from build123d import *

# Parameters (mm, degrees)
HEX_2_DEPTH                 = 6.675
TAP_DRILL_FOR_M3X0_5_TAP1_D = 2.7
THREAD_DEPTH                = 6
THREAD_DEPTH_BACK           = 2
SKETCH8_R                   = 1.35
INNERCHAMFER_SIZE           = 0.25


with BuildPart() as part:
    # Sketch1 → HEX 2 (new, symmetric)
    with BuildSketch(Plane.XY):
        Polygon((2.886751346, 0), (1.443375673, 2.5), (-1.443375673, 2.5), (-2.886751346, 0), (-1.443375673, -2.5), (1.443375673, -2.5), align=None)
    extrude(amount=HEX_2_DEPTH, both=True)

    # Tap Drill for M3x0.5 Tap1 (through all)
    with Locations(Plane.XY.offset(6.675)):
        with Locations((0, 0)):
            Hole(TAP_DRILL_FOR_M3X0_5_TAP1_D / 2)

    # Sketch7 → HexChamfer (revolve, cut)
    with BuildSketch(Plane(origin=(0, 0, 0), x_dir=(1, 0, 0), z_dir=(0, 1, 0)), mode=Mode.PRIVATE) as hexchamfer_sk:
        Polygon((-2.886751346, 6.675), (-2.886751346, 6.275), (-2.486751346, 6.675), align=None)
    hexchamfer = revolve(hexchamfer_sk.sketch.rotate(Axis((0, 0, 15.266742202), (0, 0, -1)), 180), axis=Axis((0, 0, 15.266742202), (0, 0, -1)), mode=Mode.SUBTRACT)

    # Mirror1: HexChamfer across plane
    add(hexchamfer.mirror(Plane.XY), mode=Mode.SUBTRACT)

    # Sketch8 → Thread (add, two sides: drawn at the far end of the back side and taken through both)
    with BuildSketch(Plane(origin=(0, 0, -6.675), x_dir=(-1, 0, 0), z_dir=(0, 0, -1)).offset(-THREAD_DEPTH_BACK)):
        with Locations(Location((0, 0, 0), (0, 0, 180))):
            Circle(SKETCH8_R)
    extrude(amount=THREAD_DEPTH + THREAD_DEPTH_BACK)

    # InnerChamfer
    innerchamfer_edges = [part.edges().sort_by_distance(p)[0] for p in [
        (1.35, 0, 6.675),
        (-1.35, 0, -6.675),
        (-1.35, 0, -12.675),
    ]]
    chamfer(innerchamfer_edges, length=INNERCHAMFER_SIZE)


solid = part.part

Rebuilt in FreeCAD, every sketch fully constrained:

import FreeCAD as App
import Part
import Sketcher
from FreeCAD import Vector
Q = App.Units.Quantity


def edges_at(feature, points):
    """Names of the edges that pass closest to the given points."""
    edges = feature.Shape.Edges
    near = lambda p: min(range(len(edges)), key=lambda i: edges[i].distToShape(Part.Vertex(*p))[0])
    return sorted({f"Edge{near(p) + 1}" for p in points})


def add_polygon(sketch, points):
    """Adds a closed chain of lines whose ends are joined by coincident constraints."""
    first, n = sketch.GeometryCount, len(points)
    for a, b in zip(points, points[1:] + points[:1]):
        sketch.addGeometry(Part.LineSegment(App.Vector(*a, 0), App.Vector(*b, 0)), False)
    for i in range(n):
        sketch.addConstraint(Sketcher.Constraint("Coincident", first + i, 2, first + (i + 1) % n, 1))

doc = App.newDocument("Part")
body = doc.addObject("PartDesign::Body", "Body")

# Sketch on XY plane
sketch1 = doc.addObject("Sketcher::SketchObject", "Sketch")
body.addObject(sketch1)
sketch1.AttachmentSupport = (doc.XY_Plane, [""])
sketch1.MapMode = "FlatFace"
add_polygon(sketch1, [(2.9, 0), (1.4, 2.5), (-1.4, 2.5), (-2.9, 0), (-1.4, -2.5), (1.4, -2.5)])  # lines 0-5
sketch1.addConstraint([
    Sketcher.Constraint("Horizontal", 1),
    Sketcher.Constraint("Horizontal", 4),
    Sketcher.Constraint("Symmetric", 0, 2, 3, 2, -1, 1),
    Sketcher.Constraint("Symmetric", 2, 2, 5, 2, -1, 1),
    Sketcher.Constraint("PointOnObject", 2, 2, -1),
    Sketcher.Constraint("Parallel", 2, 5),
    Sketcher.Constraint("Vertical", 1, 2, 3, 2),
    Sketcher.Constraint("Angle", 0, Q("120 deg")),
    Sketcher.Constraint("DistanceY", 3, 2, 1, 2, Q("5 mm")),
    Sketcher.Constraint("DistanceX", 1, 2, 1, 1, Q("2.886751 mm")),
])
pad1 = doc.addObject("PartDesign::Pad", "Pad")
body.addObject(pad1)
pad1.Profile = sketch1
pad1.Length = 13.35
pad1.Midplane = True

# Sketch on XY plane
sketch2 = doc.addObject("Sketcher::SketchObject", "Sketch001")
body.addObject(sketch2)
sketch2.AttachmentSupport = (doc.XY_Plane, [""])
sketch2.MapMode = "FlatFace"
sketch2.AttachmentOffset = App.Placement(Vector(0, 0, 6.675), App.Rotation())
sketch2.addGeometry(Part.Circle(Vector(0, 0, 0), Vector(0, 0, 1), 1.4), False)
sketch2.addConstraint([
    Sketcher.Constraint("Coincident", 0, 3, -1, 1),
    Sketcher.Constraint("Diameter", 0, Q("2.7 mm")),
])
doc.recompute()
hole = doc.addObject("PartDesign::Hole", "Hole")
body.addObject(hole)
hole.Profile = sketch2
hole.ThreadType = "None"
hole.Diameter = 2.7
hole.DepthType = "ThroughAll"

# Sketch on XZ plane
sketch3 = doc.addObject("Sketcher::SketchObject", "Sketch002")
body.addObject(sketch3)
sketch3.AttachmentSupport = (doc.XZ_Plane, [""])
sketch3.MapMode = "FlatFace"
add_polygon(sketch3, [(-2.89, -6.67), (-2.89, -6.28), (-2.49, -6.67)])  # lines 0-2
sketch3.addConstraint([
    Sketcher.Constraint("Vertical", 0),
    Sketcher.Constraint("Horizontal", 2),
    Sketcher.Constraint("Equal", 2, 0),
    Sketcher.Constraint("DistanceX", 2, 2, 2, 1, Q("0.4 mm")),
    Sketcher.Constraint("DistanceY", 0, 2, -1, 1, Q("6.275 mm")),
    Sketcher.Constraint("DistanceX", 0, 2, -1, 1, Q("2.886751 mm")),
])
groove = doc.addObject("PartDesign::Groove", "Groove")
body.addObject(groove)
groove.Profile = sketch3
groove.ReferenceAxis = (sketch3, ["V_Axis"])
groove.Angle = 360
doc.recompute()

mirrored = doc.addObject("PartDesign::Mirrored", "Mirrored")
body.addObject(mirrored)
mirrored.Originals = [groove]
mirrored.MirrorPlane = (doc.XY_Plane, [""])
body.Tip = mirrored

# Sketch on XY plane
sketch4 = doc.addObject("Sketcher::SketchObject", "Sketch003")
body.addObject(sketch4)
sketch4.AttachmentSupport = (doc.XY_Plane, [""])
sketch4.MapMode = "FlatFace"
sketch4.AttachmentOffset = App.Placement(Vector(0, 0, -6.675), App.Rotation())
sketch4.addGeometry(Part.Circle(Vector(0, 0, 0), Vector(0, 0, 1), 1.4), False)
sketch4.addConstraint([
    Sketcher.Constraint("Coincident", 0, 3, -1, 1),
    Sketcher.Constraint("Diameter", 0, Q("2.7 mm")),
])
pad2 = doc.addObject("PartDesign::Pad", "Pad001")
body.addObject(pad2)
pad2.Profile = sketch4
pad2.Type = "TwoLengths"
pad2.Length = 6
pad2.Length2 = 2
pad2.Reversed = True
doc.recompute()

chamfer = doc.addObject("PartDesign::Chamfer", "Chamfer")
body.addObject(chamfer)
chamfer.Base = (pad2, edges_at(pad2, [(1.35, 0, 6.675), (-1.35, 0, -6.675), (-1.35, 0, -12.675)]))
chamfer.Size = 0.25

doc.recompute()
